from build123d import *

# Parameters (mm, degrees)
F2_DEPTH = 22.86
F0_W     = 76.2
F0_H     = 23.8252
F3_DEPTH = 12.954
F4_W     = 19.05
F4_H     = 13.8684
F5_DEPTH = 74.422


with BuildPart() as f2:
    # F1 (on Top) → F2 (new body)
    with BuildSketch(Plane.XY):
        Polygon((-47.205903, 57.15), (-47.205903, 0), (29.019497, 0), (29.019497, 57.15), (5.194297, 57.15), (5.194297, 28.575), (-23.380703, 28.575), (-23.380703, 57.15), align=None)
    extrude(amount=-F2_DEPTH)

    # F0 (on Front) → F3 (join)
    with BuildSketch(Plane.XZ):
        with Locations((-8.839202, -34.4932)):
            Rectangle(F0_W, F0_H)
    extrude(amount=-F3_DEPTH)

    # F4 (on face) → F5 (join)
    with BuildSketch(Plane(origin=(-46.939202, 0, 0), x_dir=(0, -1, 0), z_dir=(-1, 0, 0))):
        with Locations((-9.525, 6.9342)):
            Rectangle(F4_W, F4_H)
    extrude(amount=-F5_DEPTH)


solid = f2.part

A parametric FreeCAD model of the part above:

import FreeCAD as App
import Part
import Sketcher

V = App.Vector
Q = App.Units.Quantity


def add_polygon(sketch, points):
    """Adds a closed chain of lines whose ends are joined by coincident constraints."""
    first, n = sketch.GeometryCount, len(points)
    for a, b in zip(points, points[1:] + points[:1]):
        sketch.addGeometry(Part.LineSegment(App.Vector(*a, 0), App.Vector(*b, 0)), False)
    for i in range(n):
        sketch.addConstraint(Sketcher.Constraint("Coincident", first + i, 2, first + (i + 1) % n, 1))

doc = App.newDocument("Part")
params = doc.addObject("Spreadsheet::Sheet", "Params")
for row, (alias, value) in enumerate([
    ("sketch1_height", "2.25 in"),
    ("sketch1_width", "3.001 in"),
    ("sketch1_width2", "0.938 in"),
    ("pad1_length", "0.9 in"),
    ("sketch2_width", "3 in"),
    ("sketch2_height", "0.938 in"),
    ("pad2_length", "0.51 in"),
    ("sketch3_width", "0.75 in"),
    ("sketch3_height", "0.546 in"),
    ("pad3_length", "2.93 in"),
], start=1):
    params.set(f"A{row}", alias)
    params.set(f"B{row}", "=" + value)
    params.setAlias(f"B{row}", alias)

body = doc.addObject("PartDesign::Body", "Body")

# Sketch on XY plane
sketch1 = doc.addObject("Sketcher::SketchObject", "Sketch")
body.addObject(sketch1)
sketch1.AttachmentSupport = (doc.XY_Plane, [""])
sketch1.MapMode = "FlatFace"
add_polygon(sketch1, [(-47, 57), (-47, 0), (29, 0), (29, 57), (5, 57), (5, 29), (-23, 29), (-23, 57)])  # lines 0-7
sketch1.addConstraint(Sketcher.Constraint("Vertical", 0))
sketch1.addConstraint(Sketcher.Constraint("Horizontal", 1))
sketch1.addConstraint(Sketcher.Constraint("Vertical", 2))
sketch1.addConstraint(Sketcher.Constraint("Horizontal", 3))
sketch1.addConstraint(Sketcher.Constraint("Vertical", 4))
sketch1.addConstraint(Sketcher.Constraint("Horizontal", 5))
sketch1.addConstraint(Sketcher.Constraint("Vertical", 6))
sketch1.addConstraint(Sketcher.Constraint("Horizontal", 7))
sketch1.addConstraint(Sketcher.Constraint("PointOnObject", 0, 2, -1))
sketch1.addConstraint(Sketcher.Constraint("Horizontal", 3, 2, 6, 2))
sketch1.addConstraint(Sketcher.Constraint("Equal", 3, 7))
sketch1.addConstraint(Sketcher.Constraint("Equal", 5, 4))
sketch1.addConstraint(Sketcher.Constraint("DistanceY", 0, 2, 0, 1, Q("2.25 in")))
sketch1.addConstraint(Sketcher.Constraint("DistanceX", 1, 1, 1, 2, Q("3.001 in")))
sketch1.addConstraint(Sketcher.Constraint("DistanceX", 3, 2, 3, 1, Q("0.938 in")))
sketch1.addConstraint(Sketcher.Constraint("DistanceX", 0, 2, -1, 1, Q("1.8585001 in")))
sketch1.setExpression("Constraints[20]", "Params.sketch1_height")
sketch1.setExpression("Constraints[21]", "Params.sketch1_width")
sketch1.setExpression("Constraints[22]", "Params.sketch1_width2")
pad1 = doc.addObject("PartDesign::Pad", "Pad")
body.addObject(pad1)
pad1.Profile = sketch1
pad1.setExpression("Length", "Params.pad1_length")
pad1.Reversed = True

# Sketch on XZ plane
sketch2 = doc.addObject("Sketcher::SketchObject", "Sketch001")
body.addObject(sketch2)
sketch2.AttachmentSupport = (doc.XZ_Plane, [""])
sketch2.MapMode = "FlatFace"
add_polygon(sketch2, [(-47, -23), (-47, -46), (29, -46), (29, -23)])  # lines 0-3
sketch2.addConstraint(Sketcher.Constraint("Vertical", 0))
sketch2.addConstraint(Sketcher.Constraint("Horizontal", 1))
sketch2.addConstraint(Sketcher.Constraint("Vertical", 2))
sketch2.addConstraint(Sketcher.Constraint("Horizontal", 3))
sketch2.addConstraint(Sketcher.Constraint("DistanceX", 1, 1, 1, 2, Q("3 in")))
sketch2.addConstraint(Sketcher.Constraint("DistanceY", 0, 2, 0, 1, Q("0.938 in")))
sketch2.addConstraint(Sketcher.Constraint("DistanceX", 0, 2, -1, 1, Q("1.8480001 in")))
sketch2.addConstraint(Sketcher.Constraint("DistanceY", 0, 2, -1, 1, Q("1.827 in")))
sketch2.setExpression("Constraints[8]", "Params.sketch2_width")
sketch2.setExpression("Constraints[9]", "Params.sketch2_height")
pad2 = doc.addObject("PartDesign::Pad", "Pad001")
body.addObject(pad2)
pad2.Profile = sketch2
pad2.setExpression("Length", "Params.pad2_length")
pad2.Reversed = True

# Sketch on YZ plane
sketch3 = doc.addObject("Sketcher::SketchObject", "Sketch002")
body.addObject(sketch3)
sketch3.AttachmentSupport = (doc.YZ_Plane, [""])
sketch3.MapMode = "FlatFace"
sketch3.AttachmentOffset = App.Placement(V(0, 0, -1.8480001 * 25.4), App.Rotation())
add_polygon(sketch3, [(19, 14), (19, 0), (0, 0), (0, 14)])  # lines 0-3
sketch3.addConstraint(Sketcher.Constraint("Vertical", 0))
sketch3.addConstraint(Sketcher.Constraint("Horizontal", 1))
sketch3.addConstraint(Sketcher.Constraint("Vertical", 2))
sketch3.addConstraint(Sketcher.Constraint("Horizontal", 3))
sketch3.addConstraint(Sketcher.Constraint("Coincident", 1, 2, -1, 1))
sketch3.addConstraint(Sketcher.Constraint("DistanceX", 1, 2, 1, 1, Q("0.75 in")))
sketch3.addConstraint(Sketcher.Constraint("DistanceY", 0, 2, 0, 1, Q("0.546 in")))
sketch3.setExpression("Constraints[9]", "Params.sketch3_width")
sketch3.setExpression("Constraints[10]", "Params.sketch3_height")
pad3 = doc.addObject("PartDesign::Pad", "Pad002")
body.addObject(pad3)
pad3.Profile = sketch3
pad3.setExpression("Length", "Params.pad3_length")

doc.recompute()
